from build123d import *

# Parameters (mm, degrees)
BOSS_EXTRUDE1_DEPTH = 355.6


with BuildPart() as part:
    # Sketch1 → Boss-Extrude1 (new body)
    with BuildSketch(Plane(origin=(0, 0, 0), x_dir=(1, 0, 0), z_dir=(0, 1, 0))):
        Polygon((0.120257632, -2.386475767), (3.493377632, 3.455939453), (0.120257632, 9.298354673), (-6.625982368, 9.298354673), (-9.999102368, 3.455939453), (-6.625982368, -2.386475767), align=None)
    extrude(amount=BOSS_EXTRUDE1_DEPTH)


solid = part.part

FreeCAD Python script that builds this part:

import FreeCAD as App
import Part
import Sketcher

V = App.Vector
Q = App.Units.Quantity

doc = App.newDocument("Part")
body = doc.addObject("PartDesign::Body", "Body")

# Sketch on XZ plane
sketch1 = body.newObject("Sketcher::SketchObject", "Sketch")
sketch1.AttachmentSupport = (doc.getObject("XZ_Plane"), [""])
sketch1.MapMode = "FlatFace"
sketch1.addGeometry([
    Part.LineSegment(V(0, 2, 0), V(3, -3, 0)),  # 0
    Part.LineSegment(V(3, -3, 0), V(0, -9, 0)),  # 1
    Part.LineSegment(V(0, -9, 0), V(-7, -9, 0)),  # 2
    Part.LineSegment(V(-7, -9, 0), V(-10, -3, 0)),  # 3
    Part.LineSegment(V(-10, -3, 0), V(-7, 2, 0)),  # 4
    Part.LineSegment(V(-7, 2, 0), V(0, 2, 0)),  # 5
], False)
sketch1.addConstraint([
    Sketcher.Constraint("Coincident", 0, 2, 1, 1),
    Sketcher.Constraint("Coincident", 1, 2, 2, 1),
    Sketcher.Constraint("Coincident", 2, 2, 3, 1),
    Sketcher.Constraint("Coincident", 3, 2, 4, 1),
    Sketcher.Constraint("Coincident", 4, 2, 5, 1),
    Sketcher.Constraint("Coincident", 5, 2, 0, 1),
    Sketcher.Constraint("Horizontal", 2),
    Sketcher.Constraint("Horizontal", 5),
    Sketcher.Constraint("Parallel", 0, 3),
    Sketcher.Constraint("Parallel", 1, 4),
    Sketcher.Constraint("Horizontal", 0, 2, 3, 2),
    Sketcher.Constraint("Vertical", 2, 2, 4, 2),
    Sketcher.Constraint("Vertical", 1, 2, 5, 2),
    Sketcher.Constraint("Angle", 0, Q("-60 deg")),
    Sketcher.Constraint("DistanceX", 2, 2, 2, 1, Q("0.2656 in")),
    Sketcher.Constraint("Distance", 0, Q("0.2656 in")),
    Sketcher.Constraint("DistanceY", 0, 2, -1, 1, Q("3.455939 mm")),
    Sketcher.Constraint("DistanceX", -1, 1, 0, 2, Q("3.493378 mm")),
])
pad1 = body.newObject("PartDesign::Pad", "Pad")
pad1.Profile = sketch1
pad1.Length = Q("14 in")
pad1.Reversed = True

doc.recompute()
